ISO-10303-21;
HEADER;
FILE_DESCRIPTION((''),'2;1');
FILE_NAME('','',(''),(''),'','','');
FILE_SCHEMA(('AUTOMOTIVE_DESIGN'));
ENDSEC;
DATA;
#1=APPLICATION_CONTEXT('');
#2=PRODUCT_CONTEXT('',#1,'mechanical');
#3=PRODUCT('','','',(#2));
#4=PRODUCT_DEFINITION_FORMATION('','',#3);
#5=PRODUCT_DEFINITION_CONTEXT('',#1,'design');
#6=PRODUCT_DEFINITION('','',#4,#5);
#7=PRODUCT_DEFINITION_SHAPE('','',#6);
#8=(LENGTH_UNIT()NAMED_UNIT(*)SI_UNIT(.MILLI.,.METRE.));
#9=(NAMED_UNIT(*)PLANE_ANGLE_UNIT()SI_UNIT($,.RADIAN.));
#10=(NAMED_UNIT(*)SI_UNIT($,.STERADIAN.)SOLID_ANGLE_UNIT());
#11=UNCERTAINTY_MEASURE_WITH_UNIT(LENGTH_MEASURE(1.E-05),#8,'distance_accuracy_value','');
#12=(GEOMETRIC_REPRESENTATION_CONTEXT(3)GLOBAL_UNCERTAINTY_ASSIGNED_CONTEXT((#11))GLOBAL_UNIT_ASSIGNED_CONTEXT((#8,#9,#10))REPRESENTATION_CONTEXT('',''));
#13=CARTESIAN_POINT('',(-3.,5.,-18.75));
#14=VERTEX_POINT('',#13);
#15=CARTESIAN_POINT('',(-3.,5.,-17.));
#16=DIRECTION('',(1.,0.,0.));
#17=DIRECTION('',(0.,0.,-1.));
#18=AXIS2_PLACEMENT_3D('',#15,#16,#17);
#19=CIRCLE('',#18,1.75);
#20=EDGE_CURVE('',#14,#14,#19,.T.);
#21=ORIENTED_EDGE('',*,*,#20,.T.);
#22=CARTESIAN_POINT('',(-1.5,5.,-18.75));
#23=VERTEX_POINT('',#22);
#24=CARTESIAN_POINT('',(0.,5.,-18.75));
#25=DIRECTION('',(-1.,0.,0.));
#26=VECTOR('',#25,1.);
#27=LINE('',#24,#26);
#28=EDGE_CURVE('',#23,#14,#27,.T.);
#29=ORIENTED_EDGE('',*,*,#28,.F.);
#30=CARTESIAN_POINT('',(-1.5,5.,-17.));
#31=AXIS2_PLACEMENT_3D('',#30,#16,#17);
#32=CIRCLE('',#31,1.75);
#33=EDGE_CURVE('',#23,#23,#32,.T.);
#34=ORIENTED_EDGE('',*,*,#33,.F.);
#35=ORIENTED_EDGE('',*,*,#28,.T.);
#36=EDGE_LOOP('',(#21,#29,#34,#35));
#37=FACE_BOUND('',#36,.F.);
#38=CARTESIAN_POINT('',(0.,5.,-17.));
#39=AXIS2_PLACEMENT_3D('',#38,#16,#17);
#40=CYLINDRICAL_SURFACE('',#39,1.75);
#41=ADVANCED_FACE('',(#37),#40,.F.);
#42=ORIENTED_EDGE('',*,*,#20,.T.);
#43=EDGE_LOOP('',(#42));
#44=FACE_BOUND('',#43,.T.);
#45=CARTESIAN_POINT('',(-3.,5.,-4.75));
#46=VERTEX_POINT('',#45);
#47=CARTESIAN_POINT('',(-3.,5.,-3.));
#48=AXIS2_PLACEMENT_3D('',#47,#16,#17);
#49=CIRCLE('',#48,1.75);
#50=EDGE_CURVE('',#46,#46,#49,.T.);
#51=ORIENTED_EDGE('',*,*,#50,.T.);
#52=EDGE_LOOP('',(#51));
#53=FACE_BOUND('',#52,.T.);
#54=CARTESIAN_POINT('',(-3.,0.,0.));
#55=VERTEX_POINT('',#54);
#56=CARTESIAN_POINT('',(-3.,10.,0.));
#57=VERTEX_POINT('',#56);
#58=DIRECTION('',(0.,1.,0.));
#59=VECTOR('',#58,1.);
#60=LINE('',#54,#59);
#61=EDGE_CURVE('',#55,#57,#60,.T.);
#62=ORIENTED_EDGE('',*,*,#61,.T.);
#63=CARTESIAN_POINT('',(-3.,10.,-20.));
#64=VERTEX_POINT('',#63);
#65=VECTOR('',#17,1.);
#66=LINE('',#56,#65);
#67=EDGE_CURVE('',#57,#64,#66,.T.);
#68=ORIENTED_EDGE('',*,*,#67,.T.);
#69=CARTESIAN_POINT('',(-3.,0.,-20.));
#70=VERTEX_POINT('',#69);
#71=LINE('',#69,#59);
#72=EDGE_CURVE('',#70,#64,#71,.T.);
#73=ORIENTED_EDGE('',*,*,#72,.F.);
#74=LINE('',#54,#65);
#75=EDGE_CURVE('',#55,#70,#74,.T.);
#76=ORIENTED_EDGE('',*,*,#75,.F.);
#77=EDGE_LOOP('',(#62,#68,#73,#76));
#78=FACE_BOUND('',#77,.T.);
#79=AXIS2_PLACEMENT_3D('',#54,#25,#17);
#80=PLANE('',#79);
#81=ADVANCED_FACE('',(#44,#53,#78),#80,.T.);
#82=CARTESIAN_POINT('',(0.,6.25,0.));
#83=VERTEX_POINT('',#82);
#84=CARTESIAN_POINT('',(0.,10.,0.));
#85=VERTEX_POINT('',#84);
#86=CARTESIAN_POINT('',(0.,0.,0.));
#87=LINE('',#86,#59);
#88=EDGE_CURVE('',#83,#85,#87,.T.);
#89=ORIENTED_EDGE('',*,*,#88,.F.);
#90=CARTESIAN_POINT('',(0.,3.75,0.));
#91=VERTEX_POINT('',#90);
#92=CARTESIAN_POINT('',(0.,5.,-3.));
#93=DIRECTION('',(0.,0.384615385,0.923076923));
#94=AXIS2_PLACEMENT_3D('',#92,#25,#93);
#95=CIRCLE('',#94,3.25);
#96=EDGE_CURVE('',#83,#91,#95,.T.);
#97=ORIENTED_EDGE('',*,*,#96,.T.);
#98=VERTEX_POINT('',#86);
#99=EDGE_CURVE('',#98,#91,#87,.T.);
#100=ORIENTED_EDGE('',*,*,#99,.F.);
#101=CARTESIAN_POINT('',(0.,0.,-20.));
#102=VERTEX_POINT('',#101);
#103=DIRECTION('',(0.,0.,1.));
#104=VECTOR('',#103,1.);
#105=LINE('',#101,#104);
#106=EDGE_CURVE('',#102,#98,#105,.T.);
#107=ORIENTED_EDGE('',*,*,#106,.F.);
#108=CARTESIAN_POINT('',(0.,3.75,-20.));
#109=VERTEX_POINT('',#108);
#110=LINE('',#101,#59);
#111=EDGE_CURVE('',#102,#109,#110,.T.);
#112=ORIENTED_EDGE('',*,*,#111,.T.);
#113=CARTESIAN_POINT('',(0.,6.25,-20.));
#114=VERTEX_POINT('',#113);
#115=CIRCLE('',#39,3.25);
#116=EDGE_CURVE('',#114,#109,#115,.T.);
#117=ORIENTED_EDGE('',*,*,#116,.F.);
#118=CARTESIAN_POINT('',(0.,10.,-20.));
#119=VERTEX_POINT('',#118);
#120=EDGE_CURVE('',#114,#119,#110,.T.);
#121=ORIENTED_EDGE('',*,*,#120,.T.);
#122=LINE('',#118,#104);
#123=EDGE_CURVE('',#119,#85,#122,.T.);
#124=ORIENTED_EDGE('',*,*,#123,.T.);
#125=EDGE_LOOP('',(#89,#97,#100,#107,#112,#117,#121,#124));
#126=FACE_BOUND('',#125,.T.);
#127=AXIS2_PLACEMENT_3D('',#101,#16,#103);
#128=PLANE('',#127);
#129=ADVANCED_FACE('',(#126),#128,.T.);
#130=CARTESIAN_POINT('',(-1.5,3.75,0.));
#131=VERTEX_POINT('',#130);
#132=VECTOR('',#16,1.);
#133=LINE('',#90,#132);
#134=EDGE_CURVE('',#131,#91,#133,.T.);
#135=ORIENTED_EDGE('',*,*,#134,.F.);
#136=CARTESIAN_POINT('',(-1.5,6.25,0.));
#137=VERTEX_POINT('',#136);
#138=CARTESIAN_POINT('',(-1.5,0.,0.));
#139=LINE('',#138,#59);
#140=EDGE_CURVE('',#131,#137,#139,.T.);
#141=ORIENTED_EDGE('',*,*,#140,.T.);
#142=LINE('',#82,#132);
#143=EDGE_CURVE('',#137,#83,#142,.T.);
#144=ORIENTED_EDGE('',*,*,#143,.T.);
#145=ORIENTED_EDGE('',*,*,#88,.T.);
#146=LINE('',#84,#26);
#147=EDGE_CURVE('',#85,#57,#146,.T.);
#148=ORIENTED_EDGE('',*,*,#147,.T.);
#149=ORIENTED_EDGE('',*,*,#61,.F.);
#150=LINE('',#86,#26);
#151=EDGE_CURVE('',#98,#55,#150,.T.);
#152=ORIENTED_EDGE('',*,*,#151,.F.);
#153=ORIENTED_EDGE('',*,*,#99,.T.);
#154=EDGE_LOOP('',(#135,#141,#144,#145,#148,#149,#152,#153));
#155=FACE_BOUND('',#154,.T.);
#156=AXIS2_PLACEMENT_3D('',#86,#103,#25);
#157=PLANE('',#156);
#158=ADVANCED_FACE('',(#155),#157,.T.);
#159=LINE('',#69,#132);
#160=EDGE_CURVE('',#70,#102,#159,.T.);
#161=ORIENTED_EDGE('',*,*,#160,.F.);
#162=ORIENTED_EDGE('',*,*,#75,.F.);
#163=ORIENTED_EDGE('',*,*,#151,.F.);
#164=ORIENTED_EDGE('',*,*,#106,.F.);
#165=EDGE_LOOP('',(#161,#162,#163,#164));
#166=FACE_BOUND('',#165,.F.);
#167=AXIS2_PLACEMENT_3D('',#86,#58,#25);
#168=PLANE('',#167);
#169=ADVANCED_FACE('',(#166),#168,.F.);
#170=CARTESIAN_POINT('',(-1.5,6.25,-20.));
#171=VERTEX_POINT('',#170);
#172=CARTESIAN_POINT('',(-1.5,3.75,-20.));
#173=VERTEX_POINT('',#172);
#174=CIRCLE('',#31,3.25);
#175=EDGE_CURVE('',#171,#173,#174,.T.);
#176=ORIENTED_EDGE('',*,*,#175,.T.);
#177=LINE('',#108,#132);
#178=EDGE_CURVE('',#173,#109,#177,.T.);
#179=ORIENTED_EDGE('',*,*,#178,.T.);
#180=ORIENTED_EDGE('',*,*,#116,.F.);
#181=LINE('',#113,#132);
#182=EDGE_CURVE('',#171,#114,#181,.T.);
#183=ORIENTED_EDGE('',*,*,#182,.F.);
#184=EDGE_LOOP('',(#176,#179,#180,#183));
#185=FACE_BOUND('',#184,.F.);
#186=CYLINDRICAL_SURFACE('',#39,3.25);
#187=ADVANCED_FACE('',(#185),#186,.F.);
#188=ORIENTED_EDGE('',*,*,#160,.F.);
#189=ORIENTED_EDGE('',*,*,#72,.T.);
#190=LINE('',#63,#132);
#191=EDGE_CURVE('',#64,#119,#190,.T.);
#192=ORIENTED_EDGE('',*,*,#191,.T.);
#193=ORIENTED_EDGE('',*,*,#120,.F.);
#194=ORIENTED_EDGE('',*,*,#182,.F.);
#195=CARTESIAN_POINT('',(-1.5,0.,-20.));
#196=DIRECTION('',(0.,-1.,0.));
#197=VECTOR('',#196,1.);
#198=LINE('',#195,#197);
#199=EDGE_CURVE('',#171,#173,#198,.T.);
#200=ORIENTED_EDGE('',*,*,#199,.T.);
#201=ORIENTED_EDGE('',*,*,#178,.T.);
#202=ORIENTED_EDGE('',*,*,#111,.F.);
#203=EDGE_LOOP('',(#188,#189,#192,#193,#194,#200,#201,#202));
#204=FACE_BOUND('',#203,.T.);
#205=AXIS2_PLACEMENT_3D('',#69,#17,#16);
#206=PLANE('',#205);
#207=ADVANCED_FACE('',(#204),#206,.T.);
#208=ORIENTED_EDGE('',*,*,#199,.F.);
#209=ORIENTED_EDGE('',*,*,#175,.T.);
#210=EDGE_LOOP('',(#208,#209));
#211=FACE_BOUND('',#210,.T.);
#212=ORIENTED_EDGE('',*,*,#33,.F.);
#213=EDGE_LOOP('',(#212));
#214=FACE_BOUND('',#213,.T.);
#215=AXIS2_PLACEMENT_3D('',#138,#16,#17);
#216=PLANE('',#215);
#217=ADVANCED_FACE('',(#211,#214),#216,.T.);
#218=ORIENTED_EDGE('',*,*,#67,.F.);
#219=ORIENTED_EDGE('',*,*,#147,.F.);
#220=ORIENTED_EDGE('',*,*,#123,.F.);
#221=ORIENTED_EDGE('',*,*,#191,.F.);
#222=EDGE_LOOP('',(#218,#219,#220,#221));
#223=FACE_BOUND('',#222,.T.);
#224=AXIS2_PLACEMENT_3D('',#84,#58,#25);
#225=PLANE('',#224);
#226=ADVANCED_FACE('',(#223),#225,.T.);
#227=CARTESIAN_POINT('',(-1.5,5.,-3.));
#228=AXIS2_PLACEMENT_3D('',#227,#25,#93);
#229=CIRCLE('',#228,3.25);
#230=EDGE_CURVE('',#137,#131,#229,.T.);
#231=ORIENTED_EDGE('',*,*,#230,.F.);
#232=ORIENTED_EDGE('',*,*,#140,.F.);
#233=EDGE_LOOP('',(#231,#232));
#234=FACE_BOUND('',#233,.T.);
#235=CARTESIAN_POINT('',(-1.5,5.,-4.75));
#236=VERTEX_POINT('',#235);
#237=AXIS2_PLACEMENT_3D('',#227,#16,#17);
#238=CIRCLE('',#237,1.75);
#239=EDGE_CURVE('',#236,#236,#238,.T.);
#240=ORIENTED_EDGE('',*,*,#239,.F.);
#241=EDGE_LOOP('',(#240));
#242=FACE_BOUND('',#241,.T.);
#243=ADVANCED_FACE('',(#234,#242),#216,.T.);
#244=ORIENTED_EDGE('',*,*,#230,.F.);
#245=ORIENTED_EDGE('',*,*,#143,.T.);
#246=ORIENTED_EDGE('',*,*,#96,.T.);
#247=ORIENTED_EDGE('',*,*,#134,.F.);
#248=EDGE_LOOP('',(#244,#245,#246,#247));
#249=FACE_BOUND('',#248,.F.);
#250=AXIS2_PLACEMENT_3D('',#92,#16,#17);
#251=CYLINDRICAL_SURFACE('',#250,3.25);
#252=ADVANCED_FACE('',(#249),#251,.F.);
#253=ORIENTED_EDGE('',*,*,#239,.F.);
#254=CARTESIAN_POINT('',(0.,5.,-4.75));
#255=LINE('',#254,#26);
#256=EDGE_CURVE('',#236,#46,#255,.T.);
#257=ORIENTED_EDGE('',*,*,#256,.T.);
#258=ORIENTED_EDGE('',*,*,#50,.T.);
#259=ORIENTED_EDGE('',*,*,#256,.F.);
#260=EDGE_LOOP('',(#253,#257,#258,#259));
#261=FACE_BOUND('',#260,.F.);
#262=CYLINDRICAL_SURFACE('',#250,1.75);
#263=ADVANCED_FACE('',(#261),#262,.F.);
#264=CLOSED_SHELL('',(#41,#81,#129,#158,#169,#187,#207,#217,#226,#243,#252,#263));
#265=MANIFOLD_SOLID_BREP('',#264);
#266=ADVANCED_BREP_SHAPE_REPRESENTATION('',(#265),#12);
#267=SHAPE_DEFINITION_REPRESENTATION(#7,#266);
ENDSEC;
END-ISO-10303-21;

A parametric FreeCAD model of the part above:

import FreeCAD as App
import Part
import Sketcher
Q = App.Units.Quantity

doc = App.newDocument("Part")
body = doc.addObject("PartDesign::Body", "Body")

# Sketch on XZ plane
sketch1 = body.newObject("Sketcher::SketchObject", "Sketch")
sketch1.AttachmentSupport = (doc.getObject("XZ_Plane"), [""])
sketch1.MapMode = "FlatFace"
sketch1.addGeometry([
    Part.LineSegment(App.Vector(-3, 0, 0), App.Vector(0, 0, 0)),
    Part.LineSegment(App.Vector(0, 0, 0), App.Vector(0, -20, 0)),
    Part.LineSegment(App.Vector(0, -20, 0), App.Vector(-3, -20, 0)),
    Part.LineSegment(App.Vector(-3, -20, 0), App.Vector(-3, 0, 0)),
], False)
sketch1.addConstraint([
    Sketcher.Constraint("Coincident", 0, 2, 1, 1),
    Sketcher.Constraint("Coincident", 1, 2, 2, 1),
    Sketcher.Constraint("Coincident", 2, 2, 3, 1),
    Sketcher.Constraint("Coincident", 3, 2, 0, 1),
    Sketcher.Constraint("Horizontal", 0),
    Sketcher.Constraint("Vertical", 1),
    Sketcher.Constraint("Horizontal", 2),
    Sketcher.Constraint("Vertical", 3),
    Sketcher.Constraint("Coincident", 0, 2, -1, 1),
    Sketcher.Constraint("DistanceX", 0, 1, 0, 2, Q("3 mm")),
    Sketcher.Constraint("DistanceY", 1, 2, 1, 1, Q("20 mm")),
])
pad1 = body.newObject("PartDesign::Pad", "Pad")
pad1.Profile = sketch1
pad1.Length = 10
pad1.Reversed = True

# Sketch on YZ plane
sketch2 = body.newObject("Sketcher::SketchObject", "Sketch001")
sketch2.AttachmentSupport = (doc.getObject("YZ_Plane"), [""])
sketch2.MapMode = "FlatFace"
sketch2.addGeometry([
    Part.Circle(App.Vector(5, -3, 0), App.Vector(0, 0, 1), 3.2),
    Part.Circle(App.Vector(5, -17, 0), App.Vector(0, 0, 1), 3.2),
], False)
sketch2.addConstraint([
    Sketcher.Constraint("Equal", 0, 1),
    Sketcher.Constraint("Vertical", 0, 3, 1, 3),
    Sketcher.Constraint("Diameter", 0, Q("6.5 mm")),
    Sketcher.Constraint("DistanceY", 0, 3, -1, 1, Q("3 mm")),
    Sketcher.Constraint("DistanceY", 1, 3, -1, 1, Q("17 mm")),
    Sketcher.Constraint("DistanceX", -1, 1, 0, 3, Q("5 mm")),
])
pocket1 = body.newObject("PartDesign::Pocket", "Pocket")
pocket1.Profile = sketch2
pocket1.Length = 1.5

# Sketch on YZ plane
sketch3 = body.newObject("Sketcher::SketchObject", "Sketch002")
sketch3.AttachmentSupport = (doc.getObject("YZ_Plane"), [""])
sketch3.MapMode = "FlatFace"
sketch3.addGeometry([
    Part.Circle(App.Vector(5, -3, 0), App.Vector(0, 0, 1), 1.8),
    Part.Circle(App.Vector(5, -17, 0), App.Vector(0, 0, 1), 1.8),
], False)
sketch3.addConstraint([
    Sketcher.Constraint("Equal", 0, 1),
    Sketcher.Constraint("Vertical", 0, 3, 1, 3),
    Sketcher.Constraint("Diameter", 0, Q("3.5 mm")),
    Sketcher.Constraint("DistanceX", -1, 1, 0, 3, Q("5 mm")),
    Sketcher.Constraint("DistanceY", 0, 3, -1, 1, Q("3 mm")),
    Sketcher.Constraint("DistanceY", 1, 3, -1, 1, Q("17 mm")),
])
pocket2 = body.newObject("PartDesign::Pocket", "Pocket001")
pocket2.Profile = sketch3
pocket2.Length = 25374.6

doc.recompute()
